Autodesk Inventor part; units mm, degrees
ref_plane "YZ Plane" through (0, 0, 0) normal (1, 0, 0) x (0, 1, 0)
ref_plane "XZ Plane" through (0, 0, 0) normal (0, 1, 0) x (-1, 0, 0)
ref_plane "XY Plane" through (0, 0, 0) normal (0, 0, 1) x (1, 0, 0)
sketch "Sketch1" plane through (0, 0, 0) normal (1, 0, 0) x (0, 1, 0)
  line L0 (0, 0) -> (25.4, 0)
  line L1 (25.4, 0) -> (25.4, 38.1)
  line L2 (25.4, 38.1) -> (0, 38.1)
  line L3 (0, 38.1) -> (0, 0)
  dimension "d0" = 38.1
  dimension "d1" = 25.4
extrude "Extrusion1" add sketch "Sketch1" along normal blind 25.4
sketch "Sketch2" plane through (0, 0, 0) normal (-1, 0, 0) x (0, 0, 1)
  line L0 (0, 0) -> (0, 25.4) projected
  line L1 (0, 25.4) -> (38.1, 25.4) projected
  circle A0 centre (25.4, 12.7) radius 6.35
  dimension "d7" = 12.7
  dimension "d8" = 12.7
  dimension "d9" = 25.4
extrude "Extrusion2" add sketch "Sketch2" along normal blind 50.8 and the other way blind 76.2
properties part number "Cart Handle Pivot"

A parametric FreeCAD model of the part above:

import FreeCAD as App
import Part
import Sketcher
from FreeCAD import Vector
Q = App.Units.Quantity


def add_polygon(sketch, points):
    """Adds a closed chain of lines whose ends are joined by coincident constraints."""
    first, n = sketch.GeometryCount, len(points)
    for a, b in zip(points, points[1:] + points[:1]):
        sketch.addGeometry(Part.LineSegment(App.Vector(*a, 0), App.Vector(*b, 0)), False)
    for i in range(n):
        sketch.addConstraint(Sketcher.Constraint("Coincident", first + i, 2, first + (i + 1) % n, 1))

doc = App.newDocument("Part")
body = doc.addObject("PartDesign::Body", "Body")

# Sketch on YZ plane
sketch1 = body.newObject("Sketcher::SketchObject", "Sketch")
sketch1.AttachmentSupport = (doc.getObject("YZ_Plane"), [""])
sketch1.MapMode = "FlatFace"
add_polygon(sketch1, [(0, 38), (0, 0), (25, 0), (25, 38)])  # lines 0-3
sketch1.addConstraint([
    Sketcher.Constraint("Vertical", 0),
    Sketcher.Constraint("Horizontal", 1),
    Sketcher.Constraint("Vertical", 2),
    Sketcher.Constraint("Horizontal", 3),
    Sketcher.Constraint("Coincident", 0, 2, -1, 1),
    Sketcher.Constraint("DistanceX", 1, 1, 1, 2, Q("1 in")),
    Sketcher.Constraint("DistanceY", 0, 2, 0, 1, Q("1.5 in")),
])
pad1 = body.newObject("PartDesign::Pad", "Pad")
pad1.Profile = sketch1
pad1.Length = Q("1 in")

# Sketch on YZ plane
sketch2 = body.newObject("Sketcher::SketchObject", "Sketch001")
sketch2.AttachmentSupport = (doc.getObject("YZ_Plane"), [""])
sketch2.MapMode = "FlatFace"
sketch2.addGeometry(Part.Circle(Vector(13, 25, 0), Vector(0, 0, 1), 6), False)
sketch2.addConstraint([
    Sketcher.Constraint("Diameter", 0, Q("0.5 in")),
    Sketcher.Constraint("DistanceY", -1, 1, 0, 3, Q("1 in")),
    Sketcher.Constraint("DistanceX", -1, 1, 0, 3, Q("0.5 in")),
])
pad2 = body.newObject("PartDesign::Pad", "Pad001")
pad2.Profile = sketch2
pad2.Type = "TwoLengths"
pad2.Length = Q("2 in")
pad2.Length2 = Q("3 in")
pad2.Reversed = True

doc.recompute()
